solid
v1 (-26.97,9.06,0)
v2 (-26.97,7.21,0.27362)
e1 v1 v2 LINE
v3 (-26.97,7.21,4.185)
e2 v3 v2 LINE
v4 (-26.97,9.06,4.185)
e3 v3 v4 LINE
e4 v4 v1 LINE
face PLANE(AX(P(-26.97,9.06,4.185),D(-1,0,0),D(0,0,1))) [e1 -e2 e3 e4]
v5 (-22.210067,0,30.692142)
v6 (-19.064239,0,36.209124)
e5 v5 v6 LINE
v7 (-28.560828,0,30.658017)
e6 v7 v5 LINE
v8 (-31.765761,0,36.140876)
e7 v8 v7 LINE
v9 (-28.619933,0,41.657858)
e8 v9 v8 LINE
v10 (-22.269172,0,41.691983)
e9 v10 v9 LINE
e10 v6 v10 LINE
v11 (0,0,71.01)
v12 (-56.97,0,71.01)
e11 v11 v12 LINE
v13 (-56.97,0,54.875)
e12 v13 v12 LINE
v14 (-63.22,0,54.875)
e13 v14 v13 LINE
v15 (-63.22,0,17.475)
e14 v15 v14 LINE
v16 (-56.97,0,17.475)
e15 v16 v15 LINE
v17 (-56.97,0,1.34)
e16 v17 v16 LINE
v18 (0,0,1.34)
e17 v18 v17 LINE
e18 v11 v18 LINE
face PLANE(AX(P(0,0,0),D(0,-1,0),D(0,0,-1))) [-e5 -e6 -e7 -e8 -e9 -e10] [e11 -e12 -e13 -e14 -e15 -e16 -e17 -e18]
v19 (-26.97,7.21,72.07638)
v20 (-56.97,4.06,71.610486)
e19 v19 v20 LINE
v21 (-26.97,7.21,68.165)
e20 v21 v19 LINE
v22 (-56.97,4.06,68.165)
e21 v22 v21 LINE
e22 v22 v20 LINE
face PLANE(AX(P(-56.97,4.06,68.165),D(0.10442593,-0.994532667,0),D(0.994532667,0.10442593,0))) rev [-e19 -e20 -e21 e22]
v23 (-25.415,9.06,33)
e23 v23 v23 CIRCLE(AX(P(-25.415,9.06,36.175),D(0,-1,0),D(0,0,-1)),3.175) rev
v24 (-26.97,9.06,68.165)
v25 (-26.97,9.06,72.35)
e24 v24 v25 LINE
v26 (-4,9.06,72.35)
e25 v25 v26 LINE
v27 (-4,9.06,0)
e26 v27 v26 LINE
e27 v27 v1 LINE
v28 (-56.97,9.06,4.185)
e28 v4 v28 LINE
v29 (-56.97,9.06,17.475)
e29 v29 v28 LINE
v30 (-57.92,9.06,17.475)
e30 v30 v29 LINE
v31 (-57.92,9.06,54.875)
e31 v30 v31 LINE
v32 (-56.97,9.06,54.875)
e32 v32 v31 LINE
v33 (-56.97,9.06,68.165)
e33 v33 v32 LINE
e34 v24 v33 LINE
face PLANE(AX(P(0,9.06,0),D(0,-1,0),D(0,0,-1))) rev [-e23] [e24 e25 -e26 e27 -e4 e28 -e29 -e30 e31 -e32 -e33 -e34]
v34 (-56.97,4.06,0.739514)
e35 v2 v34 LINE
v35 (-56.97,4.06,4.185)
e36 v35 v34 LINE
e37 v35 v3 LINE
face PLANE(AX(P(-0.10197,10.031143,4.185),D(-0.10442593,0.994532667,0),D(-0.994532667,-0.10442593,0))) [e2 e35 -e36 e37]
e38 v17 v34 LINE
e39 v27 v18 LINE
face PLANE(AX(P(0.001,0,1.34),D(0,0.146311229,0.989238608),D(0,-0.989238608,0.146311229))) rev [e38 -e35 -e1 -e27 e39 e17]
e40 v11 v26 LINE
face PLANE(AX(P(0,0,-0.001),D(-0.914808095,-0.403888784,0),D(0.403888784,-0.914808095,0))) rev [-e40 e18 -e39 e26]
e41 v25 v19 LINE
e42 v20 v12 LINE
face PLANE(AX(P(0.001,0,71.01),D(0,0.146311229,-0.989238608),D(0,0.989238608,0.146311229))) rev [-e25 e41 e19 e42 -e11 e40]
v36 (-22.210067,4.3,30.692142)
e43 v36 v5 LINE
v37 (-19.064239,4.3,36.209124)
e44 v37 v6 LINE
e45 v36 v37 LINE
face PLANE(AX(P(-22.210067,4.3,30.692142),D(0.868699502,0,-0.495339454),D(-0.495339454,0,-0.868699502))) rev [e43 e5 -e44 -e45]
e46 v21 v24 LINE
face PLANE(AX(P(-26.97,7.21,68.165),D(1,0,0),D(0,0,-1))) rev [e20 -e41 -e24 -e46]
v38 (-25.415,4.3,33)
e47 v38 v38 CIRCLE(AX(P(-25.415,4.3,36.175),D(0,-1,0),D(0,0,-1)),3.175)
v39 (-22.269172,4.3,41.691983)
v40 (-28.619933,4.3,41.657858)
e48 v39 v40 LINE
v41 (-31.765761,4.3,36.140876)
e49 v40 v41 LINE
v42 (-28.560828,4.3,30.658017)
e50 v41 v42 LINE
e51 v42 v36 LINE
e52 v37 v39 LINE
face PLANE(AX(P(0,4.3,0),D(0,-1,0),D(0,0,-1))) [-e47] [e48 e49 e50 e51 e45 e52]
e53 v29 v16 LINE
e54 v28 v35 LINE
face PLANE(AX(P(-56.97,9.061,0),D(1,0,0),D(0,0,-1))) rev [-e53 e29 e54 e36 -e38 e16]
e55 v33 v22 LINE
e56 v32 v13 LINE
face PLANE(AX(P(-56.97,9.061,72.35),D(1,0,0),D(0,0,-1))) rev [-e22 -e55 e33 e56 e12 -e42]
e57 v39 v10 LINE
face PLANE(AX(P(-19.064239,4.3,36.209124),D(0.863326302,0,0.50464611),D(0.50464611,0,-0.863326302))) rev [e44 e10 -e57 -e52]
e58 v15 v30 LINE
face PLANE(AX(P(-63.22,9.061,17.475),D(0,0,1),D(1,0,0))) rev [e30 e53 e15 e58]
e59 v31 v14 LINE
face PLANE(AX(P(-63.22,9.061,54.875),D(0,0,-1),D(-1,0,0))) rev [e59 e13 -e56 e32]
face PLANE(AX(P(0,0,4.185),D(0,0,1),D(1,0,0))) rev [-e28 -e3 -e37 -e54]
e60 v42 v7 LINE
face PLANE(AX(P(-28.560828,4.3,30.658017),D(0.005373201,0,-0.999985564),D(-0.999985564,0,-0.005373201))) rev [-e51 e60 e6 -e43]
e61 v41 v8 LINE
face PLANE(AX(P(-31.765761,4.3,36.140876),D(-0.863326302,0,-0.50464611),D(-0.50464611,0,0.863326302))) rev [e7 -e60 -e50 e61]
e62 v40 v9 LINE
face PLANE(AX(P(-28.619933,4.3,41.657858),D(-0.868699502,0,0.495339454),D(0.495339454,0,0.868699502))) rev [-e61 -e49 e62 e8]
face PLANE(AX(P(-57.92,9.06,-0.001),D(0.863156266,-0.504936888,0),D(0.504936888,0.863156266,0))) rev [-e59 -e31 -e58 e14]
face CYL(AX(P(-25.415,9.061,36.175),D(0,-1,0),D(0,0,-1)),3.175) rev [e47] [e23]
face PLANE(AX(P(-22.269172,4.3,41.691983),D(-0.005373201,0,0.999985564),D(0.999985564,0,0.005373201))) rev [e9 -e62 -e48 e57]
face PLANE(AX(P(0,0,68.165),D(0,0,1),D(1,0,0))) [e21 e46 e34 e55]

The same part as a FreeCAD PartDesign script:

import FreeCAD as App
import Part
import Sketcher
from FreeCAD import Vector


def add_polygon(sketch, points):
    """Adds a closed chain of lines whose ends are joined by coincident constraints."""
    first, n = sketch.GeometryCount, len(points)
    for a, b in zip(points, points[1:] + points[:1]):
        sketch.addGeometry(Part.LineSegment(App.Vector(*a, 0), App.Vector(*b, 0)), False)
    for i in range(n):
        sketch.addConstraint(Sketcher.Constraint("Coincident", first + i, 2, first + (i + 1) % n, 1))

doc = App.newDocument("Part")
body = doc.addObject("PartDesign::Body", "Body")

# Sketch on XZ plane
sketch1 = doc.addObject("Sketcher::SketchObject", "Sketch")
body.addObject(sketch1)
sketch1.AttachmentSupport = (doc.XZ_Plane, [""])
sketch1.MapMode = "FlatFace"
add_polygon(sketch1, [(-63, 0), (-63, 72), (0, 72), (0, 0)])  # lines 0-3
sketch1.addConstraint(Sketcher.Constraint("Vertical", 0))
sketch1.addConstraint(Sketcher.Constraint("Horizontal", 1))
sketch1.addConstraint(Sketcher.Constraint("Vertical", 2))
sketch1.addConstraint(Sketcher.Constraint("Horizontal", 3))
sketch1.addConstraint(Sketcher.Constraint("Coincident", 2, 2, -1, 1))
sketch1.addConstraint(Sketcher.Constraint("DistanceX", 1, 1, 1, 2, 63.22))
sketch1.addConstraint(Sketcher.Constraint("DistanceY", 0, 1, 0, 2, 72.35))
pad1 = doc.addObject("PartDesign::Pad", "Pad")
body.addObject(pad1)
pad1.Profile = sketch1
pad1.Length = 9.06
pad1.Reversed = True

# Sketch on XY plane
sketch2 = doc.addObject("Sketcher::SketchObject", "Sketch001")
body.addObject(sketch2)
sketch2.AttachmentSupport = (doc.XY_Plane, [""])
sketch2.MapMode = "FlatFace"
sketch2.AttachmentOffset = App.Placement(Vector(0, 0, 72.35), App.Rotation())
add_polygon(sketch2, [(-58, 9), (-63, 9), (-63, 0)])  # lines 0-2
sketch2.addConstraint(Sketcher.Constraint("Horizontal", 0))
sketch2.addConstraint(Sketcher.Constraint("Vertical", 1))
sketch2.addConstraint(Sketcher.Constraint("PointOnObject", 1, 2, -1))
sketch2.addConstraint(Sketcher.Constraint("DistanceX", 0, 2, 0, 1, 5.3))
sketch2.addConstraint(Sketcher.Constraint("DistanceY", 1, 2, 1, 1, 9.06))
sketch2.addConstraint(Sketcher.Constraint("DistanceX", 0, 2, -1, 1, 63.22))
pocket1 = doc.addObject("PartDesign::Pocket", "Pocket")
body.addObject(pocket1)
pocket1.Profile = sketch2
pocket1.Type = "UpToFirst"

# Sketch on XZ plane
sketch3 = doc.addObject("Sketcher::SketchObject", "Sketch002")
body.addObject(sketch3)
sketch3.AttachmentSupport = (doc.XZ_Plane, [""])
sketch3.MapMode = "FlatFace"
add_polygon(sketch3, [(-63, 72), (-63, 55), (-57, 55), (-57, 72)])  # lines 0-3
sketch3.addConstraint(Sketcher.Constraint("Vertical", 0))
sketch3.addConstraint(Sketcher.Constraint("Horizontal", 1))
sketch3.addConstraint(Sketcher.Constraint("Vertical", 2))
sketch3.addConstraint(Sketcher.Constraint("Horizontal", 3))
sketch3.addConstraint(Sketcher.Constraint("DistanceX", 1, 1, 1, 2, 6.25))
sketch3.addConstraint(Sketcher.Constraint("DistanceY", 0, 2, 0, 1, 17.475))
sketch3.addConstraint(Sketcher.Constraint("DistanceX", 0, 2, -1, 1, 63.22))
sketch3.addConstraint(Sketcher.Constraint("DistanceY", -1, 1, 2, 2, 72.35))
pocket2 = doc.addObject("PartDesign::Pocket", "Pocket001")
body.addObject(pocket2)
pocket2.Profile = sketch3
pocket2.Length = 9.06

# Sketch on XZ plane
sketch4 = doc.addObject("Sketcher::SketchObject", "Sketch003")
body.addObject(sketch4)
sketch4.AttachmentSupport = (doc.XZ_Plane, [""])
sketch4.MapMode = "FlatFace"
add_polygon(sketch4, [(-63, 17), (-63, 0), (-57, 0), (-57, 17)])  # lines 0-3
sketch4.addConstraint(Sketcher.Constraint("Vertical", 0))
sketch4.addConstraint(Sketcher.Constraint("Horizontal", 1))
sketch4.addConstraint(Sketcher.Constraint("Vertical", 2))
sketch4.addConstraint(Sketcher.Constraint("Horizontal", 3))
sketch4.addConstraint(Sketcher.Constraint("PointOnObject", 0, 2, -1))
sketch4.addConstraint(Sketcher.Constraint("DistanceX", 1, 1, 1, 2, 6.25))
sketch4.addConstraint(Sketcher.Constraint("DistanceY", 0, 2, 0, 1, 17.475))
sketch4.addConstraint(Sketcher.Constraint("DistanceX", 0, 2, -1, 1, 63.22))
pocket3 = doc.addObject("PartDesign::Pocket", "Pocket002")
body.addObject(pocket3)
pocket3.Profile = sketch4
pocket3.Length = 9.06

# Sketch on XY plane
sketch5 = doc.addObject("Sketcher::SketchObject", "Sketch004")
body.addObject(sketch5)
sketch5.AttachmentSupport = (doc.XY_Plane, [""])
sketch5.MapMode = "FlatFace"
sketch5.AttachmentOffset = App.Placement(Vector(0, 0, 72.35), App.Rotation())
add_polygon(sketch5, [(-57, 9.1), (-57, 4.1), (-27, 7.2), (-27, 9.1)])  # lines 0-3
sketch5.addConstraint(Sketcher.Constraint("Vertical", 0))
sketch5.addConstraint(Sketcher.Constraint("Vertical", 2))
sketch5.addConstraint(Sketcher.Constraint("Horizontal", 3))
sketch5.addConstraint(Sketcher.Constraint("DistanceX", 3, 2, 3, 1, 30.0))
sketch5.addConstraint(Sketcher.Constraint("DistanceY", 0, 2, 0, 1, 5.0))
sketch5.addConstraint(Sketcher.Constraint("DistanceY", 2, 1, 2, 2, 1.85))
sketch5.addConstraint(Sketcher.Constraint("DistanceX", 0, 2, -1, 1, 56.97))
sketch5.addConstraint(Sketcher.Constraint("DistanceY", -1, 1, 0, 2, 4.06))
pocket4 = doc.addObject("PartDesign::Pocket", "Pocket003")
body.addObject(pocket4)
pocket4.Profile = sketch5
pocket4.Length = 4.185

# Sketch on XY plane
sketch6 = doc.addObject("Sketcher::SketchObject", "Sketch005")
body.addObject(sketch6)
sketch6.AttachmentSupport = (doc.XY_Plane, [""])
sketch6.MapMode = "FlatFace"
add_polygon(sketch6, [(-57, 9.1), (-57, 4.1), (-27, 7.2), (-27, 9.1)])  # lines 0-3
sketch6.addConstraint(Sketcher.Constraint("Vertical", 0))
sketch6.addConstraint(Sketcher.Constraint("Vertical", 2))
sketch6.addConstraint(Sketcher.Constraint("Horizontal", 3))
sketch6.addConstraint(Sketcher.Constraint("DistanceX", 3, 2, 3, 1, 30.0))
sketch6.addConstraint(Sketcher.Constraint("DistanceY", 0, 2, 0, 1, 5.0))
sketch6.addConstraint(Sketcher.Constraint("DistanceY", 2, 1, 2, 2, 1.85))
sketch6.addConstraint(Sketcher.Constraint("DistanceX", 0, 2, -1, 1, 56.97))
sketch6.addConstraint(Sketcher.Constraint("DistanceY", -1, 1, 0, 2, 4.06))
pocket5 = doc.addObject("PartDesign::Pocket", "Pocket004")
body.addObject(pocket5)
pocket5.Profile = sketch6
pocket5.Length = 4.185
pocket5.Reversed = True

# Sketch on XY plane
sketch7 = doc.addObject("Sketcher::SketchObject", "Sketch006")
body.addObject(sketch7)
sketch7.AttachmentSupport = (doc.XY_Plane, [""])
sketch7.MapMode = "FlatFace"
sketch7.AttachmentOffset = App.Placement(Vector(0, 0, 72.35), App.Rotation())
add_polygon(sketch7, [(-4, 9.1), (0, 0), (0, 9.1)])  # lines 0-2
sketch7.addConstraint(Sketcher.Constraint("Vertical", 1))
sketch7.addConstraint(Sketcher.Constraint("Horizontal", 2))
sketch7.addConstraint(Sketcher.Constraint("Coincident", 0, 2, -1, 1))
sketch7.addConstraint(Sketcher.Constraint("DistanceX", 2, 2, 2, 1, 4.0))
sketch7.addConstraint(Sketcher.Constraint("DistanceY", 1, 1, 1, 2, 9.06))
pocket6 = doc.addObject("PartDesign::Pocket", "Pocket005")
body.addObject(pocket6)
pocket6.Profile = sketch7
pocket6.Type = "UpToFirst"

# Sketch on YZ plane
sketch8 = doc.addObject("Sketcher::SketchObject", "Sketch007")
body.addObject(sketch8)
sketch8.AttachmentSupport = (doc.YZ_Plane, [""])
sketch8.MapMode = "FlatFace"
sketch8.AttachmentOffset = App.Placement(Vector(0, 0, -56.97), App.Rotation())
add_polygon(sketch8, [(0, 71), (0, 72.3), (9.1, 72.3)])  # lines 0-2
sketch8.addConstraint(Sketcher.Constraint("Vertical", 0))
sketch8.addConstraint(Sketcher.Constraint("Horizontal", 1))
sketch8.addConstraint(Sketcher.Constraint("PointOnObject", 0, 2, -2))
sketch8.addConstraint(Sketcher.Constraint("DistanceX", 1, 1, 1, 2, 9.06))
sketch8.addConstraint(Sketcher.Constraint("DistanceY", 0, 1, 0, 2, 1.34))
sketch8.addConstraint(Sketcher.Constraint("DistanceY", -1, 1, 0, 2, 72.35))
pocket7 = doc.addObject("PartDesign::Pocket", "Pocket006")
body.addObject(pocket7)
pocket7.Profile = sketch8
pocket7.Type = "UpToFirst"
pocket7.Reversed = True

# Sketch on YZ plane
sketch9 = doc.addObject("Sketcher::SketchObject", "Sketch008")
body.addObject(sketch9)
sketch9.AttachmentSupport = (doc.YZ_Plane, [""])
sketch9.MapMode = "FlatFace"
sketch9.AttachmentOffset = App.Placement(Vector(0, 0, -56.97), App.Rotation())
add_polygon(sketch9, [(0, 0), (0, 1.3), (9.1, 0)])  # lines 0-2
sketch9.addConstraint(Sketcher.Constraint("Vertical", 0))
sketch9.addConstraint(Sketcher.Constraint("Horizontal", 2))
sketch9.addConstraint(Sketcher.Constraint("Coincident", 2, 2, -1, 1))
sketch9.addConstraint(Sketcher.Constraint("DistanceX", 2, 2, 2, 1, 9.06))
sketch9.addConstraint(Sketcher.Constraint("DistanceY", 0, 1, 0, 2, 1.34))
pocket8 = doc.addObject("PartDesign::Pocket", "Pocket007")
body.addObject(pocket8)
pocket8.Profile = sketch9
pocket8.Type = "UpToFirst"
pocket8.Reversed = True

# Sketch on XZ plane
sketch10 = doc.addObject("Sketcher::SketchObject", "Sketch009")
body.addObject(sketch10)
sketch10.AttachmentSupport = (doc.XZ_Plane, [""])
sketch10.MapMode = "FlatFace"
sketch10.addGeometry(Part.Circle(Vector(-25.4, 36.2, 0), Vector(0, 0, 1), 3.2), False)
sketch10.addConstraint(Sketcher.Constraint("Diameter", 0, 6.35))
sketch10.addConstraint(Sketcher.Constraint("DistanceX", 0, 3, -1, 1, 25.415))
sketch10.addConstraint(Sketcher.Constraint("DistanceY", -1, 1, 0, 3, 36.175))
pocket9 = doc.addObject("PartDesign::Pocket", "Pocket008")
body.addObject(pocket9)
pocket9.Profile = sketch10
pocket9.Type = "UpToFirst"

# Sketch on XZ plane
sketch11 = doc.addObject("Sketcher::SketchObject", "Sketch010")
body.addObject(sketch11)
sketch11.AttachmentSupport = (doc.XZ_Plane, [""])
sketch11.MapMode = "FlatFace"
add_polygon(sketch11, [(-22.3, 41.7), (-28.6, 41.7), (-31.8, 36.1), (-28.6, 30.7), (-22.2, 30.7), (-19.1, 36.2)])  # lines 0-5
sketch11.addGeometry(Part.Circle(Vector(-25.4, 36.2, 0), Vector(0, 0, 1), 3.2), False)  # 6
sketch11.addConstraint(Sketcher.Constraint("Parallel", 0, 3))
sketch11.addConstraint(Sketcher.Constraint("Parallel", 1, 4))
sketch11.addConstraint(Sketcher.Constraint("Parallel", 2, 5))
sketch11.addConstraint(Sketcher.Constraint("Equal", 0, 1))
sketch11.addConstraint(Sketcher.Constraint("Equal", 1, 2))
sketch11.addConstraint(Sketcher.Constraint("Equal", 2, 3))
sketch11.addConstraint(Sketcher.Constraint("Diameter", 6, 6.35))
sketch11.addConstraint(Sketcher.Constraint("DistanceX", 6, 3, -1, 1, 25.415))
sketch11.addConstraint(Sketcher.Constraint("DistanceY", -1, 1, 6, 3, 36.175))
sketch11.addConstraint(Sketcher.Constraint("DistanceY", -1, 1, 0, 2, 41.657858))
sketch11.addConstraint(Sketcher.Constraint("DistanceX", 1, 2, -1, 1, 31.765761))
sketch11.addConstraint(Sketcher.Constraint("DistanceX", 2, 2, -1, 1, 28.560828))
sketch11.addConstraint(Sketcher.Constraint("DistanceY", -1, 1, 3, 2, 30.692142))
sketch11.addConstraint(Sketcher.Constraint("DistanceX", 4, 2, -1, 1, 19.064239))
sketch11.addConstraint(Sketcher.Constraint("DistanceX", 1, 2, 0, 2, 3.145828))
pocket10 = doc.addObject("PartDesign::Pocket", "Pocket009")
body.addObject(pocket10)
pocket10.Profile = sketch11
pocket10.Length = 4.3

doc.recompute()
